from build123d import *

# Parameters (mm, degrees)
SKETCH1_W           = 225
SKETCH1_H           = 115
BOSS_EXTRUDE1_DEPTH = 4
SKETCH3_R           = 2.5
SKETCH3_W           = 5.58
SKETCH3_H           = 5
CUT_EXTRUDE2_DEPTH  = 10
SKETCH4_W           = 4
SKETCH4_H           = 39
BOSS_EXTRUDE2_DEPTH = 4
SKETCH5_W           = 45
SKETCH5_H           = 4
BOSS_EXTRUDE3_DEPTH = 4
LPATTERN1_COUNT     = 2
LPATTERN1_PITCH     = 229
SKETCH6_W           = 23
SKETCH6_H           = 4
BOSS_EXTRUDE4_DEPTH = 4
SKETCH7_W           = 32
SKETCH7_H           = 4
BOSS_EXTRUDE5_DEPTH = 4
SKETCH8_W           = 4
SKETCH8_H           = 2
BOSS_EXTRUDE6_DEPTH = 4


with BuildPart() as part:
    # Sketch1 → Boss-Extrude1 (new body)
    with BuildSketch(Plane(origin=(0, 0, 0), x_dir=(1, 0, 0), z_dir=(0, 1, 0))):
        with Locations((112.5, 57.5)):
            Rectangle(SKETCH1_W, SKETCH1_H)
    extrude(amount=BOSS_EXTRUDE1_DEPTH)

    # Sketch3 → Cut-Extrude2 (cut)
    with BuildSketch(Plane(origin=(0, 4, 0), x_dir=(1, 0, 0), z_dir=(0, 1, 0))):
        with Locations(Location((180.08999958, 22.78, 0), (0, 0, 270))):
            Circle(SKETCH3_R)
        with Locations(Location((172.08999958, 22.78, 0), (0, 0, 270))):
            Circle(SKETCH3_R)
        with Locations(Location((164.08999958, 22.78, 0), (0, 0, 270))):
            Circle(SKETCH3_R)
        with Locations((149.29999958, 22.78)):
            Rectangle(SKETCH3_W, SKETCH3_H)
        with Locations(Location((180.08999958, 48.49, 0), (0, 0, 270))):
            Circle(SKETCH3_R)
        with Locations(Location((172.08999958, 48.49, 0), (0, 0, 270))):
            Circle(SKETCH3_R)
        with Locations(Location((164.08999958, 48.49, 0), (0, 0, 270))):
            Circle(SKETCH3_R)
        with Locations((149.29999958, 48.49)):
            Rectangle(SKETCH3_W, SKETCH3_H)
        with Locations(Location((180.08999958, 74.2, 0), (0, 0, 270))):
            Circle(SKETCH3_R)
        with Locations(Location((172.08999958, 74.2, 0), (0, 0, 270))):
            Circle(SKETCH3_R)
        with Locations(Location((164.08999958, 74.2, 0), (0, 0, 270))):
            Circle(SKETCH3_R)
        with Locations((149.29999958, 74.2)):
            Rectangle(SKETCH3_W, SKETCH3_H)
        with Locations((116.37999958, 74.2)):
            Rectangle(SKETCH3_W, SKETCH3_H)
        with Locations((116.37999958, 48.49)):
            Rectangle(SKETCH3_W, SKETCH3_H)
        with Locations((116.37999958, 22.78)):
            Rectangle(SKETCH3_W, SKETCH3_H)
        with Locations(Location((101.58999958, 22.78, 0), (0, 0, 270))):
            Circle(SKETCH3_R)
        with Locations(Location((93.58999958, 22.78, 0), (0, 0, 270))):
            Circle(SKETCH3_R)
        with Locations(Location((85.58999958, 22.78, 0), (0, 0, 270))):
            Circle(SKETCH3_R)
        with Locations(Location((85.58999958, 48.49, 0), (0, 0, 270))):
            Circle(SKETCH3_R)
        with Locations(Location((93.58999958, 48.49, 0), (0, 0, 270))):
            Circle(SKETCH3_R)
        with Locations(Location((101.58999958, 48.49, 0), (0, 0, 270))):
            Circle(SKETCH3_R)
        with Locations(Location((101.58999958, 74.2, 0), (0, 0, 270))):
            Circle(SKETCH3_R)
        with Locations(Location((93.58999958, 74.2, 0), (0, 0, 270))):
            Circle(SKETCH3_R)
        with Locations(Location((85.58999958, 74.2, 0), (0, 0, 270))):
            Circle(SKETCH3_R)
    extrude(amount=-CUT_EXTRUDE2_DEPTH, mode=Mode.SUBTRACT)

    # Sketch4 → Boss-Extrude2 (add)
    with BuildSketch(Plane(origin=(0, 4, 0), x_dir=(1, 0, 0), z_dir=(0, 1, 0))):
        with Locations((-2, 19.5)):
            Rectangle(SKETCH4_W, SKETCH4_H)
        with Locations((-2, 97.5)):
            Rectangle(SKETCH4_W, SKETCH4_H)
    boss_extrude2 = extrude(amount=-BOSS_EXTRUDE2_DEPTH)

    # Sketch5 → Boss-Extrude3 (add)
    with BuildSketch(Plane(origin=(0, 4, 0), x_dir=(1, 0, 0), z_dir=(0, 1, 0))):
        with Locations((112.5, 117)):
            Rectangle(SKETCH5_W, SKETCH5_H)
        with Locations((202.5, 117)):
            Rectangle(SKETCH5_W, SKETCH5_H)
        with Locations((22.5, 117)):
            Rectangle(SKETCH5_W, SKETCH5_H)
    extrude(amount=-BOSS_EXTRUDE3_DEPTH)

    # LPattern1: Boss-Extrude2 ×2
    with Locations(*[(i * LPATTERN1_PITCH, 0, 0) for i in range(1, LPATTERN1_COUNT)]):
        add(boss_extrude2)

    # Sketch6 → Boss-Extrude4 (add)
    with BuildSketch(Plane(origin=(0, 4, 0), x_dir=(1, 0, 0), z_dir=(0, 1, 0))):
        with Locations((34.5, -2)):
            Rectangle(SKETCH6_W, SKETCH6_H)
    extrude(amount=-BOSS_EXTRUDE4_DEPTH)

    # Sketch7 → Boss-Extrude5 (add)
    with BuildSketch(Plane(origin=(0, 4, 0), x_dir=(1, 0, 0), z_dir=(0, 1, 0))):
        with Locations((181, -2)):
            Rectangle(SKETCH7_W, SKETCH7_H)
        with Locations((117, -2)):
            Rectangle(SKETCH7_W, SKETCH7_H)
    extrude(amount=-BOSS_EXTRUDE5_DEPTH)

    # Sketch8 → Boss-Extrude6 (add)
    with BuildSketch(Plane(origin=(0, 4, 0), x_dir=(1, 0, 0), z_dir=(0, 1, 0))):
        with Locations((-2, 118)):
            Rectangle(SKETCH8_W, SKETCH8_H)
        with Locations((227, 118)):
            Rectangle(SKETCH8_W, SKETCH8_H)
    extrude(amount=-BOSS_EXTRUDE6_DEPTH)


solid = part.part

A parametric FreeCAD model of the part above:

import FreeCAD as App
import Part
import Sketcher
Q = App.Units.Quantity


def add_polygon(sketch, points):
    """Adds a closed chain of lines whose ends are joined by coincident constraints."""
    first, n = sketch.GeometryCount, len(points)
    for a, b in zip(points, points[1:] + points[:1]):
        sketch.addGeometry(Part.LineSegment(App.Vector(*a, 0), App.Vector(*b, 0)), False)
    for i in range(n):
        sketch.addConstraint(Sketcher.Constraint("Coincident", first + i, 2, first + (i + 1) % n, 1))

doc = App.newDocument("Part")
body = doc.addObject("PartDesign::Body", "Body")

# Sketch on XZ plane
sketch1 = body.newObject("Sketcher::SketchObject", "Sketch")
sketch1.AttachmentSupport = (doc.getObject("XZ_Plane"), [""])
sketch1.MapMode = "FlatFace"
add_polygon(sketch1, [(0, -115), (0, 0), (225, 0), (225, -115)])  # lines 0-3
sketch1.addConstraint([
    Sketcher.Constraint("Vertical", 0),
    Sketcher.Constraint("Horizontal", 1),
    Sketcher.Constraint("Vertical", 2),
    Sketcher.Constraint("Horizontal", 3),
    Sketcher.Constraint("Coincident", 0, 2, -1, 1),
    Sketcher.Constraint("DistanceX", 1, 1, 1, 2, Q("225 mm")),
    Sketcher.Constraint("DistanceY", 0, 1, 0, 2, Q("115 mm")),
])
pad1 = body.newObject("PartDesign::Pad", "Pad")
pad1.Profile = sketch1
pad1.Length = 4
pad1.Reversed = True

# Sketch on XZ plane
sketch2 = body.newObject("Sketcher::SketchObject", "Sketch001")
sketch2.AttachmentSupport = (doc.getObject("XZ_Plane"), [""])
sketch2.MapMode = "FlatFace"
sketch2.AttachmentOffset = App.Placement(App.Vector(0, 0, -4), App.Rotation())
sketch2.addGeometry(Part.Circle(App.Vector(180.1, -22.8, 0), App.Vector(0, 0, 1), 2.5), False)  # 0
sketch2.addGeometry(Part.Circle(App.Vector(172.1, -22.8, 0), App.Vector(0, 0, 1), 2.5), False)  # 1
sketch2.addGeometry(Part.Circle(App.Vector(164.1, -22.8, 0), App.Vector(0, 0, 1), 2.5), False)  # 2
add_polygon(sketch2, [(146.5, -25.3), (146.5, -20.3), (152.1, -20.3), (152.1, -25.3)])  # lines 3-6
sketch2.addGeometry(Part.Circle(App.Vector(180.1, -48.5, 0), App.Vector(0, 0, 1), 2.5), False)  # 7
sketch2.addGeometry(Part.Circle(App.Vector(172.1, -48.5, 0), App.Vector(0, 0, 1), 2.5), False)  # 8
sketch2.addGeometry(Part.Circle(App.Vector(164.1, -48.5, 0), App.Vector(0, 0, 1), 2.5), False)  # 9
add_polygon(sketch2, [(146.5, -51), (146.5, -46), (152.1, -46), (152.1, -51)])  # lines 10-13
sketch2.addGeometry(Part.Circle(App.Vector(180.1, -74.2, 0), App.Vector(0, 0, 1), 2.5), False)  # 14
sketch2.addGeometry(Part.Circle(App.Vector(172.1, -74.2, 0), App.Vector(0, 0, 1), 2.5), False)  # 15
sketch2.addGeometry(Part.Circle(App.Vector(164.1, -74.2, 0), App.Vector(0, 0, 1), 2.5), False)  # 16
add_polygon(sketch2, [(146.5, -76.7), (146.5, -71.7), (152.1, -71.7), (152.1, -76.7)])  # lines 17-20
add_polygon(sketch2, [(113.6, -76.7), (113.6, -71.7), (119.2, -71.7), (119.2, -76.7)])  # lines 21-24
add_polygon(sketch2, [(113.6, -51), (113.6, -46), (119.2, -46), (119.2, -51)])  # lines 25-28
add_polygon(sketch2, [(113.6, -25.3), (113.6, -20.3), (119.2, -20.3), (119.2, -25.3)])  # lines 29-32
sketch2.addGeometry(Part.Circle(App.Vector(101.6, -22.8, 0), App.Vector(0, 0, 1), 2.5), False)  # 33
sketch2.addGeometry(Part.Circle(App.Vector(93.6, -22.8, 0), App.Vector(0, 0, 1), 2.5), False)  # 34
sketch2.addGeometry(Part.Circle(App.Vector(85.6, -22.8, 0), App.Vector(0, 0, 1), 2.5), False)  # 35
sketch2.addGeometry(Part.Circle(App.Vector(85.6, -48.5, 0), App.Vector(0, 0, 1), 2.5), False)  # 36
sketch2.addGeometry(Part.Circle(App.Vector(93.6, -48.5, 0), App.Vector(0, 0, 1), 2.5), False)  # 37
sketch2.addGeometry(Part.Circle(App.Vector(101.6, -48.5, 0), App.Vector(0, 0, 1), 2.5), False)  # 38
sketch2.addGeometry(Part.Circle(App.Vector(101.6, -74.2, 0), App.Vector(0, 0, 1), 2.5), False)  # 39
sketch2.addGeometry(Part.Circle(App.Vector(93.6, -74.2, 0), App.Vector(0, 0, 1), 2.5), False)  # 40
sketch2.addGeometry(Part.Circle(App.Vector(85.6, -74.2, 0), App.Vector(0, 0, 1), 2.5), False)  # 41
sketch2.addConstraint([
    Sketcher.Constraint("Vertical", 3),
    Sketcher.Constraint("Horizontal", 4),
    Sketcher.Constraint("Vertical", 5),
    Sketcher.Constraint("Horizontal", 6),
    Sketcher.Constraint("Vertical", 10),
    Sketcher.Constraint("Horizontal", 11),
    Sketcher.Constraint("Vertical", 12),
    Sketcher.Constraint("Horizontal", 13),
    Sketcher.Constraint("Vertical", 17),
    Sketcher.Constraint("Horizontal", 18),
    Sketcher.Constraint("Vertical", 19),
    Sketcher.Constraint("Horizontal", 20),
    Sketcher.Constraint("Vertical", 21),
    Sketcher.Constraint("Horizontal", 22),
    Sketcher.Constraint("Vertical", 23),
    Sketcher.Constraint("Horizontal", 24),
    Sketcher.Constraint("Vertical", 25),
    Sketcher.Constraint("Horizontal", 26),
    Sketcher.Constraint("Vertical", 27),
    Sketcher.Constraint("Horizontal", 28),
    Sketcher.Constraint("Vertical", 29),
    Sketcher.Constraint("Horizontal", 30),
    Sketcher.Constraint("Vertical", 31),
    Sketcher.Constraint("Horizontal", 32),
    Sketcher.Constraint("Equal", 0, 1),
    Sketcher.Constraint("Equal", 1, 2),
    Sketcher.Constraint("Equal", 2, 7),
    Sketcher.Constraint("Equal", 7, 8),
    Sketcher.Constraint("Equal", 8, 9),
    Sketcher.Constraint("Equal", 9, 14),
    Sketcher.Constraint("Equal", 14, 15),
    Sketcher.Constraint("Equal", 15, 16),
    Sketcher.Constraint("Equal", 16, 33),
    Sketcher.Constraint("Equal", 33, 34),
    Sketcher.Constraint("Equal", 34, 35),
    Sketcher.Constraint("Equal", 35, 36),
    Sketcher.Constraint("Equal", 36, 37),
    Sketcher.Constraint("Equal", 37, 38),
    Sketcher.Constraint("Equal", 38, 39),
    Sketcher.Constraint("Equal", 39, 40),
    Sketcher.Constraint("Equal", 40, 41),
    Sketcher.Constraint("Horizontal", 0, 3, 1, 3),
    Sketcher.Constraint("Horizontal", 1, 3, 2, 3),
    Sketcher.Constraint("Horizontal", 7, 3, 8, 3),
    Sketcher.Constraint("Horizontal", 8, 3, 9, 3),
    Sketcher.Constraint("Horizontal", 14, 3, 15, 3),
    Sketcher.Constraint("Horizontal", 15, 3, 16, 3),
    Sketcher.Constraint("Horizontal", 2, 3, 33, 3),
    Sketcher.Constraint("Horizontal", 33, 3, 34, 3),
    Sketcher.Constraint("Horizontal", 34, 3, 35, 3),
    Sketcher.Constraint("Horizontal", 9, 3, 36, 3),
    Sketcher.Constraint("Horizontal", 36, 3, 37, 3),
    Sketcher.Constraint("Horizontal", 37, 3, 38, 3),
    Sketcher.Constraint("Horizontal", 16, 3, 39, 3),
    Sketcher.Constraint("Horizontal", 39, 3, 40, 3),
    Sketcher.Constraint("Horizontal", 40, 3, 41, 3),
    Sketcher.Constraint("Horizontal", 18, 2, 21, 2),
    Sketcher.Constraint("Horizontal", 20, 2, 23, 2),
    Sketcher.Constraint("Horizontal", 11, 2, 25, 2),
    Sketcher.Constraint("Horizontal", 13, 2, 27, 2),
    Sketcher.Constraint("Horizontal", 4, 2, 29, 2),
    Sketcher.Constraint("Horizontal", 6, 2, 31, 2),
    Sketcher.Constraint("Vertical", 0, 3, 7, 3),
    Sketcher.Constraint("Vertical", 1, 3, 8, 3),
    Sketcher.Constraint("Vertical", 2, 3, 9, 3),
    Sketcher.Constraint("Vertical", 7, 3, 14, 3),
    Sketcher.Constraint("Vertical", 8, 3, 15, 3),
    Sketcher.Constraint("Vertical", 9, 3, 16, 3),
    Sketcher.Constraint("Vertical", 35, 3, 36, 3),
    Sketcher.Constraint("Vertical", 34, 3, 37, 3),
    Sketcher.Constraint("Vertical", 33, 3, 38, 3),
    Sketcher.Constraint("Vertical", 38, 3, 39, 3),
    Sketcher.Constraint("Vertical", 37, 3, 40, 3),
    Sketcher.Constraint("Vertical", 36, 3, 41, 3),
    Sketcher.Constraint("Vertical", 6, 2, 10, 2),
    Sketcher.Constraint("Vertical", 5, 2, 11, 2),
    Sketcher.Constraint("Vertical", 13, 2, 17, 2),
    Sketcher.Constraint("Vertical", 12, 2, 18, 2),
    Sketcher.Constraint("Vertical", 24, 2, 25, 2),
    Sketcher.Constraint("Vertical", 23, 2, 26, 2),
    Sketcher.Constraint("Vertical", 28, 2, 29, 2),
    Sketcher.Constraint("Vertical", 27, 2, 30, 2),
    Sketcher.Constraint("Equal", 20, 22),
    Sketcher.Constraint("Equal", 5, 10),
    Sketcher.Constraint("Equal", 12, 17),
    Sketcher.Constraint("Diameter", 0, Q("5 mm")),
    Sketcher.Constraint("DistanceY", 3, 1, 3, 2, Q("5 mm")),
    Sketcher.Constraint("DistanceX", 1, 3, 0, 3, Q("8 mm")),
    Sketcher.Constraint("DistanceX", 2, 3, 1, 3, Q("8 mm")),
    Sketcher.Constraint("DistanceX", 34, 3, 33, 3, Q("8 mm")),
    Sketcher.Constraint("DistanceX", 35, 3, 34, 3, Q("8 mm")),
    Sketcher.Constraint("DistanceX", 4, 2, 2, 3, Q("12 mm")),
    Sketcher.Constraint("DistanceX", 39, 3, 21, 2, Q("12 mm")),
    Sketcher.Constraint("DistanceX", 4, 1, 4, 2, Q("5.58 mm")),
    Sketcher.Constraint("DistanceY", 14, 3, -1, 1, Q("74.2 mm")),
    Sketcher.Constraint("DistanceY", 17, 2, -1, 1, Q("71.7 mm")),
    Sketcher.Constraint("DistanceX", 33, 3, 2, 3, Q("62.5 mm")),
    Sketcher.Constraint("DistanceY", 2, 3, 3, 2, Q("2.5 mm")),
    Sketcher.Constraint("DistanceY", 9, 3, 10, 2, Q("2.5 mm")),
    Sketcher.Constraint("DistanceX", -1, 1, 0, 3, Q("180.09 mm")),
    Sketcher.Constraint("DistanceY", 0, 3, -1, 1, Q("22.78 mm")),
    Sketcher.Constraint("DistanceY", 7, 3, -1, 1, Q("48.49 mm")),
])
pocket1 = body.newObject("PartDesign::Pocket", "Pocket")
pocket1.Profile = sketch2
pocket1.Length = 10
pocket1.Reversed = True

# Sketch on XZ plane
sketch3 = body.newObject("Sketcher::SketchObject", "Sketch002")
sketch3.AttachmentSupport = (doc.getObject("XZ_Plane"), [""])
sketch3.MapMode = "FlatFace"
sketch3.AttachmentOffset = App.Placement(App.Vector(0, 0, -4), App.Rotation())
add_polygon(sketch3, [(-4, -39), (-4, 0), (0, 0), (0, -39)])  # lines 0-3
add_polygon(sketch3, [(-4, -117), (-4, -78), (0, -78), (0, -117)])  # lines 4-7
sketch3.addConstraint([
    Sketcher.Constraint("Vertical", 0),
    Sketcher.Constraint("Horizontal", 1),
    Sketcher.Constraint("Vertical", 2),
    Sketcher.Constraint("Horizontal", 3),
    Sketcher.Constraint("Vertical", 4),
    Sketcher.Constraint("Horizontal", 5),
    Sketcher.Constraint("Vertical", 6),
    Sketcher.Constraint("Horizontal", 7),
    Sketcher.Constraint("Coincident", 1, 2, -1, 1),
    Sketcher.Constraint("PointOnObject", 5, 2, -2),
    Sketcher.Constraint("Vertical", 3, 2, 4, 2),
    Sketcher.Constraint("Equal", 2, 4),
    Sketcher.Constraint("DistanceX", 1, 1, 1, 2, Q("4 mm")),
    Sketcher.Constraint("DistanceY", 0, 1, 0, 2, Q("39 mm")),
    Sketcher.Constraint("DistanceY", 4, 2, -1, 1, Q("78 mm")),
])
pad2 = body.newObject("PartDesign::Pad", "Pad001")
pad2.Profile = sketch3
pad2.Length = 4

# Sketch on XZ plane
sketch4 = body.newObject("Sketcher::SketchObject", "Sketch003")
sketch4.AttachmentSupport = (doc.getObject("XZ_Plane"), [""])
sketch4.MapMode = "FlatFace"
sketch4.AttachmentOffset = App.Placement(App.Vector(0, 0, -4), App.Rotation())
add_polygon(sketch4, [(90, -119), (90, -115), (135, -115), (135, -119)])  # lines 0-3
add_polygon(sketch4, [(180, -119), (180, -115), (225, -115), (225, -119)])  # lines 4-7
add_polygon(sketch4, [(0, -119), (0, -115), (45, -115), (45, -119)])  # lines 8-11
sketch4.addConstraint([
    Sketcher.Constraint("Vertical", 0),
    Sketcher.Constraint("Horizontal", 1),
    Sketcher.Constraint("Vertical", 2),
    Sketcher.Constraint("Horizontal", 3),
    Sketcher.Constraint("Vertical", 4),
    Sketcher.Constraint("Horizontal", 5),
    Sketcher.Constraint("Vertical", 6),
    Sketcher.Constraint("Horizontal", 7),
    Sketcher.Constraint("Vertical", 8),
    Sketcher.Constraint("Horizontal", 9),
    Sketcher.Constraint("Vertical", 10),
    Sketcher.Constraint("Horizontal", 11),
    Sketcher.Constraint("PointOnObject", 8, 2, -2),
    Sketcher.Constraint("Horizontal", 1, 2, 4, 2),
    Sketcher.Constraint("Horizontal", 3, 2, 6, 2),
    Sketcher.Constraint("Horizontal", 5, 2, 8, 2),
    Sketcher.Constraint("Horizontal", 7, 2, 10, 2),
    Sketcher.Constraint("Equal", 3, 5),
    Sketcher.Constraint("Equal", 7, 9),
    Sketcher.Constraint("DistanceX", 1, 1, 1, 2, Q("45 mm")),
    Sketcher.Constraint("DistanceY", 0, 1, 0, 2, Q("4 mm")),
    Sketcher.Constraint("DistanceX", -1, 1, 0, 2, Q("90 mm")),
    Sketcher.Constraint("DistanceY", 0, 2, -1, 1, Q("115 mm")),
    Sketcher.Constraint("DistanceX", -1, 1, 4, 2, Q("180 mm")),
])
pad3 = body.newObject("PartDesign::Pad", "Pad002")
pad3.Profile = sketch4
pad3.Length = 4
doc.recompute()

linearpattern = body.newObject("PartDesign::LinearPattern", "LinearPattern")
linearpattern.Originals = [pad2]
linearpattern.Direction = (doc.getObject("X_Axis"), [""])
linearpattern.Mode = "offset"
linearpattern.Offset = 229
linearpattern.Occurrences = 2
body.Tip = linearpattern

# Sketch on XZ plane
sketch5 = body.newObject("Sketcher::SketchObject", "Sketch004")
sketch5.AttachmentSupport = (doc.getObject("XZ_Plane"), [""])
sketch5.MapMode = "FlatFace"
sketch5.AttachmentOffset = App.Placement(App.Vector(0, 0, -4), App.Rotation())
add_polygon(sketch5, [(23, 0), (23, 4), (46, 4), (46, 0)])  # lines 0-3
sketch5.addConstraint([
    Sketcher.Constraint("Vertical", 0),
    Sketcher.Constraint("Horizontal", 1),
    Sketcher.Constraint("Vertical", 2),
    Sketcher.Constraint("Horizontal", 3),
    Sketcher.Constraint("PointOnObject", 2, 2, -1),
    Sketcher.Constraint("DistanceX", 1, 1, 1, 2, Q("23 mm")),
    Sketcher.Constraint("DistanceY", 0, 1, 0, 2, Q("4 mm")),
    Sketcher.Constraint("DistanceX", -1, 1, 0, 2, Q("23 mm")),
])
pad4 = body.newObject("PartDesign::Pad", "Pad003")
pad4.Profile = sketch5
pad4.Length = 4

# Sketch on XZ plane
sketch6 = body.newObject("Sketcher::SketchObject", "Sketch005")
sketch6.AttachmentSupport = (doc.getObject("XZ_Plane"), [""])
sketch6.MapMode = "FlatFace"
sketch6.AttachmentOffset = App.Placement(App.Vector(0, 0, -4), App.Rotation())
add_polygon(sketch6, [(165, 0), (165, 4), (197, 4), (197, 0)])  # lines 0-3
add_polygon(sketch6, [(101, 0), (101, 4), (133, 4), (133, 0)])  # lines 4-7
sketch6.addConstraint([
    Sketcher.Constraint("Vertical", 0),
    Sketcher.Constraint("Horizontal", 1),
    Sketcher.Constraint("Vertical", 2),
    Sketcher.Constraint("Horizontal", 3),
    Sketcher.Constraint("Vertical", 4),
    Sketcher.Constraint("Horizontal", 5),
    Sketcher.Constraint("Vertical", 6),
    Sketcher.Constraint("Horizontal", 7),
    Sketcher.Constraint("PointOnObject", 2, 2, -1),
    Sketcher.Constraint("PointOnObject", 6, 2, -1),
    Sketcher.Constraint("Horizontal", 1, 2, 4, 2),
    Sketcher.Constraint("Equal", 3, 5),
    Sketcher.Constraint("DistanceX", 1, 1, 1, 2, Q("32 mm")),
    Sketcher.Constraint("DistanceY", 0, 1, 0, 2, Q("4 mm")),
    Sketcher.Constraint("DistanceX", -1, 1, 0, 2, Q("165 mm")),
    Sketcher.Constraint("DistanceX", -1, 1, 4, 2, Q("101 mm")),
])
pad5 = body.newObject("PartDesign::Pad", "Pad004")
pad5.Profile = sketch6
pad5.Length = 4

# Sketch on XZ plane
sketch7 = body.newObject("Sketcher::SketchObject", "Sketch006")
sketch7.AttachmentSupport = (doc.getObject("XZ_Plane"), [""])
sketch7.MapMode = "FlatFace"
sketch7.AttachmentOffset = App.Placement(App.Vector(0, 0, -4), App.Rotation())
add_polygon(sketch7, [(-4, -119), (-4, -117), (0, -117), (0, -119)])  # lines 0-3
add_polygon(sketch7, [(225, -119), (225, -117), (229, -117), (229, -119)])  # lines 4-7
sketch7.addConstraint([
    Sketcher.Constraint("Vertical", 0),
    Sketcher.Constraint("Horizontal", 1),
    Sketcher.Constraint("Vertical", 2),
    Sketcher.Constraint("Horizontal", 3),
    Sketcher.Constraint("Vertical", 4),
    Sketcher.Constraint("Horizontal", 5),
    Sketcher.Constraint("Vertical", 6),
    Sketcher.Constraint("Horizontal", 7),
    Sketcher.Constraint("PointOnObject", 1, 2, -2),
    Sketcher.Constraint("Horizontal", 1, 2, 4, 2),
    Sketcher.Constraint("Horizontal", 3, 2, 6, 2),
    Sketcher.Constraint("Equal", 3, 5),
    Sketcher.Constraint("DistanceX", 1, 1, 1, 2, Q("4 mm")),
    Sketcher.Constraint("DistanceY", 0, 1, 0, 2, Q("2 mm")),
    Sketcher.Constraint("DistanceY", 0, 2, -1, 1, Q("117 mm")),
    Sketcher.Constraint("DistanceX", -1, 1, 4, 2, Q("225 mm")),
])
pad6 = body.newObject("PartDesign::Pad", "Pad005")
pad6.Profile = sketch7
pad6.Length = 4

doc.recompute()
